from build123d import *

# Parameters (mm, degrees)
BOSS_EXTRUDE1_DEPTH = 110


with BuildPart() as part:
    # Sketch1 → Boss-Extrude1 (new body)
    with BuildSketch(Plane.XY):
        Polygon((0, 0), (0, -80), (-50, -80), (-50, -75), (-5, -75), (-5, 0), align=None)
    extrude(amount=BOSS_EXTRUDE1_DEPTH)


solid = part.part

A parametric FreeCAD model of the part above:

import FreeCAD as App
import Part
import Sketcher

V = App.Vector
Q = App.Units.Quantity

doc = App.newDocument("Part")
body = doc.addObject("PartDesign::Body", "Body")

sketch1 = body.newObject("Sketcher::SketchObject", "Sketch")
sketch1.AttachmentSupport = (doc.getObject("XY_Plane"), [""])
sketch1.MapMode = "FlatFace"
sketch1.addGeometry([
    Part.LineSegment(V(0, -80, 0), V(0, 0, 0)),
    Part.LineSegment(V(0, 0, 0), V(-5, 0, 0)),
    Part.LineSegment(V(-5, 0, 0), V(-5, -75, 0)),
    Part.LineSegment(V(-5, -75, 0), V(-50, -75, 0)),
    Part.LineSegment(V(-50, -75, 0), V(-50, -80, 0)),
    Part.LineSegment(V(-50, -80, 0), V(0, -80, 0)),
], False)
sketch1.addConstraint([
    Sketcher.Constraint("Coincident", 0, 2, 1, 1),
    Sketcher.Constraint("Coincident", 1, 2, 2, 1),
    Sketcher.Constraint("Coincident", 2, 2, 3, 1),
    Sketcher.Constraint("Coincident", 3, 2, 4, 1),
    Sketcher.Constraint("Coincident", 4, 2, 5, 1),
    Sketcher.Constraint("Coincident", 5, 2, 0, 1),
    Sketcher.Constraint("Vertical", 0),
    Sketcher.Constraint("Horizontal", 1),
    Sketcher.Constraint("Vertical", 2),
    Sketcher.Constraint("Horizontal", 3),
    Sketcher.Constraint("Vertical", 4),
    Sketcher.Constraint("Horizontal", 5),
    Sketcher.Constraint("Coincident", 0, 2, -1, 1),
    Sketcher.Constraint("Equal", 1, 4),
    Sketcher.Constraint("DistanceX", 1, 2, 1, 1, Q("5 mm")),
    Sketcher.Constraint("DistanceX", 3, 2, 3, 1, Q("45 mm")),
    Sketcher.Constraint("DistanceY", 0, 1, 0, 2, Q("80 mm")),
])
pad1 = body.newObject("PartDesign::Pad", "Pad")
pad1.Profile = sketch1
pad1.Length = 110

doc.recompute()
